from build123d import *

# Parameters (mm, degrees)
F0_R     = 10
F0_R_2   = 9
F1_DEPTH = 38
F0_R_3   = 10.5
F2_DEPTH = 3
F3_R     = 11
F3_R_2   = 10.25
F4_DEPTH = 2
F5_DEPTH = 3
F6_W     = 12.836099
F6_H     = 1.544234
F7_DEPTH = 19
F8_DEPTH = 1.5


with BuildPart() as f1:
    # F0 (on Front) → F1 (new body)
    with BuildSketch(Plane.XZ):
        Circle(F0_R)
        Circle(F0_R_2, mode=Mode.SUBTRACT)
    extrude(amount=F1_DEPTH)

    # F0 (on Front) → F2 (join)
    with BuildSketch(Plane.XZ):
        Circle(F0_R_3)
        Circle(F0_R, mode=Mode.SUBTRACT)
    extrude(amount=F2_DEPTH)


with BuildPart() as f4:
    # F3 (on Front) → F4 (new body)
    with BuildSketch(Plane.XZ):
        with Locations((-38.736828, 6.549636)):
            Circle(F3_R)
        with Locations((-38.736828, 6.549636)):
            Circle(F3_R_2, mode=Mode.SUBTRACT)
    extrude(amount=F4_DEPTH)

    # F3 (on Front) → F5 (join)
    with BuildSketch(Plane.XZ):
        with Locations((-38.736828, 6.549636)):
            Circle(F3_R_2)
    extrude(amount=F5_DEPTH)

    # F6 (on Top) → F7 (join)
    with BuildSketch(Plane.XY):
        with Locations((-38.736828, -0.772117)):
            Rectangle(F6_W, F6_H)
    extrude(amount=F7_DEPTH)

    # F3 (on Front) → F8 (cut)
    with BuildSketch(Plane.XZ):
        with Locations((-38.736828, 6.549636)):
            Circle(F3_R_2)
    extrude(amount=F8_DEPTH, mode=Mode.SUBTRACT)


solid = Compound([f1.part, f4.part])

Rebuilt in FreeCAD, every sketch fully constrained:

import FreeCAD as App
import Part
import Sketcher

V = App.Vector
Q = App.Units.Quantity

doc = App.newDocument("Part")
params = doc.addObject("Spreadsheet::Sheet", "Params")
for row, (alias, value) in enumerate([
    ("sketch1_diameter", "20 mm"),
    ("sketch1_diameter2", "18 mm"),
    ("pad1_length", "38 mm"),
    ("sketch2_diameter", "21 mm"),
    ("sketch2_diameter2", "20 mm"),
    ("pad2_length", "3 mm"),
    ("sketch3_diameter", "22 mm"),
    ("sketch3_diameter2", "20.5 mm"),
    ("pad3_length", "2 mm"),
    ("sketch4_diameter", "20.5 mm"),
    ("pad4_length", "3 mm"),
    ("pad5_length", "19 mm"),
    ("sketch6_diameter", "20.5 mm"),
    ("pocket1_length", "1.5 mm"),
], start=1):
    params.set(f"A{row}", alias)
    params.set(f"B{row}", "=" + value)
    params.setAlias(f"B{row}", alias)

body = doc.addObject("PartDesign::Body", "Body")

# Sketch on XZ plane
sketch1 = body.newObject("Sketcher::SketchObject", "Sketch")
sketch1.AttachmentSupport = (doc.getObject("XZ_Plane"), [""])
sketch1.MapMode = "FlatFace"
sketch1.addGeometry([
    Part.Circle(V(0, 0, 0), V(0, 0, 1), 10),
    Part.Circle(V(0, 0, 0), V(0, 0, 1), 9),
], False)
sketch1.addConstraint([
    Sketcher.Constraint("Coincident", 0, 3, -1, 1),
    Sketcher.Constraint("Coincident", 1, 3, -1, 1),
    Sketcher.Constraint("Diameter", 0, Q("20 mm")),
    Sketcher.Constraint("Diameter", 1, Q("18 mm")),
])
sketch1.setExpression("Constraints[2]", "Params.sketch1_diameter")
sketch1.setExpression("Constraints[3]", "Params.sketch1_diameter2")
pad1 = body.newObject("PartDesign::Pad", "Pad")
pad1.Profile = sketch1
pad1.setExpression("Length", "Params.pad1_length")

# Sketch on XZ plane
sketch2 = body.newObject("Sketcher::SketchObject", "Sketch001")
sketch2.AttachmentSupport = (doc.getObject("XZ_Plane"), [""])
sketch2.MapMode = "FlatFace"
sketch2.addGeometry([
    Part.Circle(V(0, 0, 0), V(0, 0, 1), 10),
    Part.Circle(V(0, 0, 0), V(0, 0, 1), 10),
], False)
sketch2.addConstraint([
    Sketcher.Constraint("Coincident", 0, 3, -1, 1),
    Sketcher.Constraint("Coincident", 1, 3, -1, 1),
    Sketcher.Constraint("Diameter", 0, Q("21 mm")),
    Sketcher.Constraint("Diameter", 1, Q("20 mm")),
])
sketch2.setExpression("Constraints[2]", "Params.sketch2_diameter")
sketch2.setExpression("Constraints[3]", "Params.sketch2_diameter2")
pad2 = body.newObject("PartDesign::Pad", "Pad001")
pad2.Profile = sketch2
pad2.setExpression("Length", "Params.pad2_length")
body2 = doc.addObject("PartDesign::Body", "Body001")

# Sketch on XZ plane
sketch3 = body2.newObject("Sketcher::SketchObject", "Sketch002")
sketch3.AttachmentSupport = (doc.getObject("XZ_Plane001"), [""])
sketch3.MapMode = "FlatFace"
sketch3.addGeometry([
    Part.Circle(V(-39, 7, 0), V(0, 0, 1), 11),
    Part.Circle(V(-39, 7, 0), V(0, 0, 1), 10),
], False)
sketch3.addConstraint([
    Sketcher.Constraint("Coincident", 1, 3, 0, 3),
    Sketcher.Constraint("Diameter", 0, Q("22 mm")),
    Sketcher.Constraint("Diameter", 1, Q("20.5 mm")),
    Sketcher.Constraint("DistanceX", 0, 3, -1, 1, Q("38.736828 mm")),
    Sketcher.Constraint("DistanceY", -1, 1, 0, 3, Q("6.549636 mm")),
])
sketch3.setExpression("Constraints[1]", "Params.sketch3_diameter")
sketch3.setExpression("Constraints[2]", "Params.sketch3_diameter2")
pad3 = body2.newObject("PartDesign::Pad", "Pad002")
pad3.Profile = sketch3
pad3.setExpression("Length", "Params.pad3_length")

# Sketch on XZ plane
sketch4 = body2.newObject("Sketcher::SketchObject", "Sketch003")
sketch4.AttachmentSupport = (doc.getObject("XZ_Plane001"), [""])
sketch4.MapMode = "FlatFace"
sketch4.addGeometry(Part.Circle(V(-39, 7, 0), V(0, 0, 1), 10), False)
sketch4.addConstraint([
    Sketcher.Constraint("Diameter", 0, Q("20.5 mm")),
    Sketcher.Constraint("DistanceX", 0, 3, -1, 1, Q("38.736828 mm")),
    Sketcher.Constraint("DistanceY", -1, 1, 0, 3, Q("6.549636 mm")),
])
sketch4.setExpression("Constraints[0]", "Params.sketch4_diameter")
pad4 = body2.newObject("PartDesign::Pad", "Pad003")
pad4.Profile = sketch4
pad4.setExpression("Length", "Params.pad4_length")

# Sketch on XY plane
sketch5 = body2.newObject("Sketcher::SketchObject", "Sketch004")
sketch5.AttachmentSupport = (doc.getObject("XY_Plane001"), [""])
sketch5.MapMode = "FlatFace"
sketch5.addGeometry([
    Part.LineSegment(V(-45.2, 0, 0), V(-45.2, -1.5, 0)),
    Part.LineSegment(V(-45.2, -1.5, 0), V(-32.3, -1.5, 0)),
    Part.LineSegment(V(-32.3, -1.5, 0), V(-32.3, 0, 0)),
    Part.LineSegment(V(-32.3, 0, 0), V(-45.2, 0, 0)),
], False)
sketch5.addConstraint([
    Sketcher.Constraint("Coincident", 0, 2, 1, 1),
    Sketcher.Constraint("Coincident", 1, 2, 2, 1),
    Sketcher.Constraint("Coincident", 2, 2, 3, 1),
    Sketcher.Constraint("Coincident", 3, 2, 0, 1),
    Sketcher.Constraint("Vertical", 0),
    Sketcher.Constraint("Horizontal", 1),
    Sketcher.Constraint("Vertical", 2),
    Sketcher.Constraint("Horizontal", 3),
    Sketcher.Constraint("PointOnObject", 2, 2, -1),
    Sketcher.Constraint("DistanceX", 1, 1, 1, 2, Q("12.836099 mm")),
    Sketcher.Constraint("DistanceY", 0, 2, 0, 1, Q("1.544234 mm")),
    Sketcher.Constraint("DistanceX", 1, 2, -1, 1, Q("32.318779 mm")),
])
pad5 = body2.newObject("PartDesign::Pad", "Pad004")
pad5.Profile = sketch5
pad5.setExpression("Length", "Params.pad5_length")

# Sketch on XZ plane
sketch6 = body2.newObject("Sketcher::SketchObject", "Sketch005")
sketch6.AttachmentSupport = (doc.getObject("XZ_Plane001"), [""])
sketch6.MapMode = "FlatFace"
sketch6.addGeometry(Part.Circle(V(-39, 7, 0), V(0, 0, 1), 10), False)
sketch6.addConstraint([
    Sketcher.Constraint("Diameter", 0, Q("20.5 mm")),
    Sketcher.Constraint("DistanceX", 0, 3, -1, 1, Q("38.736828 mm")),
    Sketcher.Constraint("DistanceY", -1, 1, 0, 3, Q("6.549636 mm")),
])
sketch6.setExpression("Constraints[0]", "Params.sketch6_diameter")
pocket1 = body2.newObject("PartDesign::Pocket", "Pocket")
pocket1.Profile = sketch6
pocket1.setExpression("Length", "Params.pocket1_length")
pocket1.Reversed = True

doc.recompute()
